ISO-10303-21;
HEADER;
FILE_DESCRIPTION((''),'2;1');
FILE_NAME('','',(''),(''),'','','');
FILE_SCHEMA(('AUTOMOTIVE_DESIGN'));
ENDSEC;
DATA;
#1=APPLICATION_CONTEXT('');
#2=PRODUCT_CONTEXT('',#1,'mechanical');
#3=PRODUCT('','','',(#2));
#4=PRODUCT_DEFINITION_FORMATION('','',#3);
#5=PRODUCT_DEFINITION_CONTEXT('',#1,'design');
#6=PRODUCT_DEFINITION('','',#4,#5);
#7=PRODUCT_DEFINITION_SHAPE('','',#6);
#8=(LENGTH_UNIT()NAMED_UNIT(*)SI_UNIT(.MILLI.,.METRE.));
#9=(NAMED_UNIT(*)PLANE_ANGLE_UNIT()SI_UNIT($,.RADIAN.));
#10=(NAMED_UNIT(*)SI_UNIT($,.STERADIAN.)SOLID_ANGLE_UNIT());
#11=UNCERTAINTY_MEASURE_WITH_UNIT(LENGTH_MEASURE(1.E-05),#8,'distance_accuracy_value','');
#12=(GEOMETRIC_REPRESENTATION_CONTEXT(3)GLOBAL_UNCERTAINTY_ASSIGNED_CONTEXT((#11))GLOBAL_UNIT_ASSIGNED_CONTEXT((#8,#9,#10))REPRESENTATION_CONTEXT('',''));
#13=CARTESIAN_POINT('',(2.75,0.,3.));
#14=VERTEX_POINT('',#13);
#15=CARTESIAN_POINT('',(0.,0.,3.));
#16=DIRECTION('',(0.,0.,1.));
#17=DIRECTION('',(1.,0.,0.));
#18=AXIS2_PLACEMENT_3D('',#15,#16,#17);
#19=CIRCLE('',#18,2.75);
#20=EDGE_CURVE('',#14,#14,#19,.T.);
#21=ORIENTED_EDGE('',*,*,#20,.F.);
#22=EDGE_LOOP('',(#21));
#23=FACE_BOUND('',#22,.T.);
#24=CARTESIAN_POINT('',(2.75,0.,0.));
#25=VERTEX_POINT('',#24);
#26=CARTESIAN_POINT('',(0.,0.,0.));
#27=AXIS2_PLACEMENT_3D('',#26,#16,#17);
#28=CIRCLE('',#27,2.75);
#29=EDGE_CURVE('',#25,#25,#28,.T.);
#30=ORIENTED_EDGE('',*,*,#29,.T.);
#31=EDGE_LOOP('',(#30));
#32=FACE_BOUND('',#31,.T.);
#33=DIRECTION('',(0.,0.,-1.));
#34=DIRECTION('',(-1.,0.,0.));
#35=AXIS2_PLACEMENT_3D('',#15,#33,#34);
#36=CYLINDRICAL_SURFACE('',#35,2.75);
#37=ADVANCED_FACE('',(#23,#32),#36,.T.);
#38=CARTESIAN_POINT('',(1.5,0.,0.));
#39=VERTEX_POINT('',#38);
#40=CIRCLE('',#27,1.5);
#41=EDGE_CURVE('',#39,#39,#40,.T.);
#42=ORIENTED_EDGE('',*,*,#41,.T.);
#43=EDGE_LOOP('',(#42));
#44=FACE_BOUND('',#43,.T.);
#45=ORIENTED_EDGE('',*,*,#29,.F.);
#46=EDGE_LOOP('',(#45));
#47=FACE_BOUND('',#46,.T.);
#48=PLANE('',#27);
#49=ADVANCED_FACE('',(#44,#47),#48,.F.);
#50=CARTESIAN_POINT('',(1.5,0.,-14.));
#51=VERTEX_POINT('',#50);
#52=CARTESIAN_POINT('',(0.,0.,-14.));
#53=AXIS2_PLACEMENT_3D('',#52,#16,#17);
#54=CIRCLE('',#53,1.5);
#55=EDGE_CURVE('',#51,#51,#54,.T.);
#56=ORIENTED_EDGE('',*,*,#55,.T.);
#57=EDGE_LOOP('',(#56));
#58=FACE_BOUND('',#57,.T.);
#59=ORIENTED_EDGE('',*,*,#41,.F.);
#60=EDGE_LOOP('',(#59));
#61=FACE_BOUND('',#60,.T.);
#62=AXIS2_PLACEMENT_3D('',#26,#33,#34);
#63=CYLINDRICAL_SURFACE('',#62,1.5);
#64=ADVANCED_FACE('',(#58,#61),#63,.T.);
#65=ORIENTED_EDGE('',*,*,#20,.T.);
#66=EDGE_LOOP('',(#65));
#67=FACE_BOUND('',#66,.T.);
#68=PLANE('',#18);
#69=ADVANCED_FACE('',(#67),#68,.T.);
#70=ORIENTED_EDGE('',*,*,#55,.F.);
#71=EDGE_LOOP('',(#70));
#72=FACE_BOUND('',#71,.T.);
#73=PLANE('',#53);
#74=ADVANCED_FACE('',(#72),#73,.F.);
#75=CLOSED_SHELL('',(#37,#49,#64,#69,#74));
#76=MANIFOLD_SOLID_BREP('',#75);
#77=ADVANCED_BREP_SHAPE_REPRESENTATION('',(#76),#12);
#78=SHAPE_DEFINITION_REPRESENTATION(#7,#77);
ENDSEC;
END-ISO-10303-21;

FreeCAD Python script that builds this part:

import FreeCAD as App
import Part
import Sketcher
from FreeCAD import Vector
Q = App.Units.Quantity

doc = App.newDocument("Part")
params = doc.addObject("Spreadsheet::Sheet", "Params")
for row, (alias, value) in enumerate([
    ("sketch1_diameter", "3 mm"),
    ("pad1_length", "14 mm"),
    ("sketch2_diameter", "5.5 mm"),
    ("pad2_length", "3 mm"),
], start=1):
    params.set(f"A{row}", alias)
    params.set(f"B{row}", "=" + value)
    params.setAlias(f"B{row}", alias)

body = doc.addObject("PartDesign::Body", "Body")

# Sketch on XY plane
sketch1 = doc.addObject("Sketcher::SketchObject", "Sketch")
body.addObject(sketch1)
sketch1.AttachmentSupport = (doc.XY_Plane, [""])
sketch1.MapMode = "FlatFace"
sketch1.AttachmentOffset = App.Placement(Vector(0, 0, -14), App.Rotation())
sketch1.addGeometry(Part.Circle(Vector(0, 0, 0), Vector(0, 0, 1), 1.5), False)
sketch1.addConstraint(Sketcher.Constraint("Coincident", 0, 3, -1, 1))
sketch1.addConstraint(Sketcher.Constraint("Diameter", 0, Q("3 mm")))
sketch1.setExpression("Constraints[1]", "Params.sketch1_diameter")
pad1 = doc.addObject("PartDesign::Pad", "Pad")
body.addObject(pad1)
pad1.Profile = sketch1
pad1.setExpression("Length", "Params.pad1_length")

# Sketch on XY plane
sketch2 = doc.addObject("Sketcher::SketchObject", "Sketch001")
body.addObject(sketch2)
sketch2.AttachmentSupport = (doc.XY_Plane, [""])
sketch2.MapMode = "FlatFace"
sketch2.addGeometry(Part.Circle(Vector(0, 0, 0), Vector(0, 0, 1), 2.8), False)
sketch2.addConstraint(Sketcher.Constraint("Coincident", 0, 3, -1, 1))
sketch2.addConstraint(Sketcher.Constraint("Diameter", 0, Q("5.5 mm")))
sketch2.setExpression("Constraints[1]", "Params.sketch2_diameter")
pad2 = doc.addObject("PartDesign::Pad", "Pad001")
body.addObject(pad2)
pad2.Profile = sketch2
pad2.setExpression("Length", "Params.pad2_length")

doc.recompute()
